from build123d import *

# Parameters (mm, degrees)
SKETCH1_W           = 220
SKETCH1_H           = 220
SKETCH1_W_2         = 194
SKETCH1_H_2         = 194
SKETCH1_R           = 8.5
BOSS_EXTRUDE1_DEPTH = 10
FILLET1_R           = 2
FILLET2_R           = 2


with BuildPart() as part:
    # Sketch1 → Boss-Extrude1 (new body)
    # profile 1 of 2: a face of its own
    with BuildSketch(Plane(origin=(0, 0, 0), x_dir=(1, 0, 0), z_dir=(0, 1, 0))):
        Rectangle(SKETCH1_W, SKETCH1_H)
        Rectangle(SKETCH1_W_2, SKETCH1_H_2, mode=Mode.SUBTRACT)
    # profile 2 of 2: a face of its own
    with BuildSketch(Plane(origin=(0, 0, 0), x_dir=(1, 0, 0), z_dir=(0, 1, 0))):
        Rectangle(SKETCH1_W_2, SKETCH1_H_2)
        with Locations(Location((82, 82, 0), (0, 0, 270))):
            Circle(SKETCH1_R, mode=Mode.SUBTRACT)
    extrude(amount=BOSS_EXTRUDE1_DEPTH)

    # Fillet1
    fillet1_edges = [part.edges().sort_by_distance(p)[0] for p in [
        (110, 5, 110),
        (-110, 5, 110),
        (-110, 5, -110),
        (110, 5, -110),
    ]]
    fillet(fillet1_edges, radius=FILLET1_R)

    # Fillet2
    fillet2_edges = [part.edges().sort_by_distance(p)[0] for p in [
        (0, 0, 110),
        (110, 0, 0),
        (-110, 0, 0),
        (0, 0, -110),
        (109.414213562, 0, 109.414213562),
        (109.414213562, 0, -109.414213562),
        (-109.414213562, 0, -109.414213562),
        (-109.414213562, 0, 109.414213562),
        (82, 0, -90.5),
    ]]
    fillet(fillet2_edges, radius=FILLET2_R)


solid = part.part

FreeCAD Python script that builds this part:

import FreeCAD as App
import Part
import Sketcher


def edges_at(feature, points):
    """Names of the edges that pass closest to the given points."""
    edges = feature.Shape.Edges
    near = lambda p: min(range(len(edges)), key=lambda i: edges[i].distToShape(Part.Vertex(*p))[0])
    return sorted({f"Edge{near(p) + 1}" for p in points})

doc = App.newDocument("Part")
body = doc.addObject("PartDesign::Body", "Body")

# Sketch on XZ plane
sketch1 = doc.addObject("Sketcher::SketchObject", "Sketch")
body.addObject(sketch1)
sketch1.AttachmentSupport = (doc.XZ_Plane, [""])
sketch1.MapMode = "FlatFace"
sketch1.addGeometry([
    Part.LineSegment(App.Vector(-110, -110, 0), App.Vector(-110, 110, 0)),  # 0
    Part.LineSegment(App.Vector(-110, 110, 0), App.Vector(110, 110, 0)),  # 1
    Part.LineSegment(App.Vector(110, 110, 0), App.Vector(110, -110, 0)),  # 2
    Part.LineSegment(App.Vector(110, -110, 0), App.Vector(-110, -110, 0)),  # 3
    Part.Circle(App.Vector(82, -82, 0), App.Vector(0, 0, 1), 8.5),  # 4
], False)
sketch1.addConstraint([
    Sketcher.Constraint("Coincident", 0, 2, 1, 1),
    Sketcher.Constraint("Coincident", 1, 2, 2, 1),
    Sketcher.Constraint("Coincident", 2, 2, 3, 1),
    Sketcher.Constraint("Coincident", 3, 2, 0, 1),
    Sketcher.Constraint("Vertical", 0),
    Sketcher.Constraint("Horizontal", 1),
    Sketcher.Constraint("Vertical", 2),
    Sketcher.Constraint("Horizontal", 3),
    Sketcher.Constraint("Symmetric", 0, 2, 2, 2, -1, 1),
    Sketcher.Constraint("Equal", 3, 0),
    Sketcher.Constraint("Diameter", 4, 17.0),
    Sketcher.Constraint("DistanceX", 1, 1, 1, 2, 220.0),
    Sketcher.Constraint("DistanceX", -1, 1, 4, 3, 82.0),
    Sketcher.Constraint("DistanceY", 4, 3, -1, 1, 82.0),
])
pad1 = doc.addObject("PartDesign::Pad", "Pad")
body.addObject(pad1)
pad1.Profile = sketch1
pad1.Length = 10
pad1.Reversed = True
doc.recompute()

fillet = doc.addObject("PartDesign::Fillet", "Fillet")
body.addObject(fillet)
fillet.Base = (pad1, edges_at(pad1, [
    (110, 5, 110),
    (-110, 5, 110),
    (-110, 5, -110),
    (110, 5, -110),
]))
fillet.Radius = 2
doc.recompute()

fillet2 = doc.addObject("PartDesign::Fillet", "Fillet001")
body.addObject(fillet2)
fillet2.Base = (fillet, edges_at(fillet, [
    (0, 0, 110),
    (110, 0, 0),
    (-110, 0, 0),
    (0, 0, -110),
    (109.414, 0, 109.414),
    (109.414, 0, -109.414),
    (-109.414, 0, -109.414),
    (-109.414, 0, 109.414),
    (82, 0, -90.5),
]))
fillet2.Radius = 2

doc.recompute()
